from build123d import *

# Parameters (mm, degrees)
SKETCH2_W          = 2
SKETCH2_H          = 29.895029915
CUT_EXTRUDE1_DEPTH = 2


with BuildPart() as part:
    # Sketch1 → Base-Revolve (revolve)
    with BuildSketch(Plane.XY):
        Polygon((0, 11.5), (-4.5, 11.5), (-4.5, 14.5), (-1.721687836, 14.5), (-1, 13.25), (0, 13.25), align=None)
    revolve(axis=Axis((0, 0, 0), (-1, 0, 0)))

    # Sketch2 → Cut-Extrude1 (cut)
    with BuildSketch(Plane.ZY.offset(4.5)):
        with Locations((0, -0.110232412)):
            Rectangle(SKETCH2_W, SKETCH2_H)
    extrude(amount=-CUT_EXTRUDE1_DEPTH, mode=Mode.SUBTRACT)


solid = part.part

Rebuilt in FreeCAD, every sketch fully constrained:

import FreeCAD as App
import Part
import Sketcher
Q = App.Units.Quantity

doc = App.newDocument("Part")
body = doc.addObject("PartDesign::Body", "Body")

sketch1 = body.newObject("Sketcher::SketchObject", "Sketch")
sketch1.AttachmentSupport = (doc.getObject("XY_Plane"), [""])
sketch1.MapMode = "FlatFace"
sketch1.addGeometry([
    Part.LineSegment(App.Vector(-4.5, 11.5, 0), App.Vector(0, 11.5, 0)),
    Part.LineSegment(App.Vector(0, 11.5, 0), App.Vector(0, 13.25, 0)),
    Part.LineSegment(App.Vector(0, 13.25, 0), App.Vector(-1, 13.25, 0)),
    Part.LineSegment(App.Vector(-1, 13.25, 0), App.Vector(-1.721688, 14.5, 0)),
    Part.LineSegment(App.Vector(-1.721688, 14.5, 0), App.Vector(-4.5, 14.5, 0)),
    Part.LineSegment(App.Vector(-4.5, 14.5, 0), App.Vector(-4.5, 11.5, 0)),
], False)
sketch1.addConstraint([
    Sketcher.Constraint("Coincident", 0, 2, 1, 1),
    Sketcher.Constraint("Coincident", 1, 2, 2, 1),
    Sketcher.Constraint("Coincident", 2, 2, 3, 1),
    Sketcher.Constraint("Coincident", 3, 2, 4, 1),
    Sketcher.Constraint("Coincident", 4, 2, 5, 1),
    Sketcher.Constraint("Coincident", 5, 2, 0, 1),
    Sketcher.Constraint("Horizontal", 0),
    Sketcher.Constraint("Vertical", 1),
    Sketcher.Constraint("Horizontal", 2),
    Sketcher.Constraint("Horizontal", 4),
    Sketcher.Constraint("Vertical", 5),
    Sketcher.Constraint("PointOnObject", 0, 2, -2),
    Sketcher.Constraint("DistanceX", 2, 2, 2, 1, Q("1 mm")),
    Sketcher.Constraint("DistanceY", 5, 2, 5, 1, Q("3 mm")),
    Sketcher.Constraint("Angle", 3, Q("120 deg")),
    Sketcher.Constraint("DistanceX", 0, 1, 0, 2, Q("4.5 mm")),
    Sketcher.Constraint("DistanceY", 1, 1, 1, 2, Q("1.75 mm")),
    Sketcher.Constraint("DistanceY", -1, 1, 0, 2, Q("11.5 mm")),
])
revolution = body.newObject("PartDesign::Revolution", "Revolution")
revolution.Profile = sketch1
revolution.ReferenceAxis = (sketch1, ["H_Axis"])
revolution.Angle = 360

sketch2 = body.newObject("Sketcher::SketchObject", "Sketch001")
sketch2.AttachmentSupport = (doc.getObject("YZ_Plane"), [""])
sketch2.MapMode = "FlatFace"
sketch2.AttachmentOffset = App.Placement(App.Vector(0, 0, -4.5), App.Rotation())
sketch2.addGeometry([
    Part.LineSegment(App.Vector(14.837283, -1, 0), App.Vector(-15.057747, -1, 0)),
    Part.LineSegment(App.Vector(-15.057747, -1, 0), App.Vector(-15.057747, 1, 0)),
    Part.LineSegment(App.Vector(-15.057747, 1, 0), App.Vector(14.837283, 1, 0)),
    Part.LineSegment(App.Vector(14.837283, 1, 0), App.Vector(14.837283, -1, 0)),
], False)
sketch2.addConstraint([
    Sketcher.Constraint("Coincident", 0, 2, 1, 1),
    Sketcher.Constraint("Coincident", 1, 2, 2, 1),
    Sketcher.Constraint("Coincident", 2, 2, 3, 1),
    Sketcher.Constraint("Coincident", 3, 2, 0, 1),
    Sketcher.Constraint("Horizontal", 0),
    Sketcher.Constraint("Vertical", 1),
    Sketcher.Constraint("Horizontal", 2),
    Sketcher.Constraint("Vertical", 3),
    Sketcher.Constraint("DistanceY", 1, 1, 1, 2, Q("2 mm")),
    Sketcher.Constraint("DistanceY", 0, 2, -1, 1, Q("1 mm")),
    Sketcher.Constraint("DistanceX", 0, 2, 0, 1, Q("29.89503 mm")),
    Sketcher.Constraint("DistanceX", 0, 2, -1, 1, Q("15.057747 mm")),
])
pocket1 = body.newObject("PartDesign::Pocket", "Pocket")
pocket1.Profile = sketch2
pocket1.Length = 2
pocket1.Reversed = True

doc.recompute()
